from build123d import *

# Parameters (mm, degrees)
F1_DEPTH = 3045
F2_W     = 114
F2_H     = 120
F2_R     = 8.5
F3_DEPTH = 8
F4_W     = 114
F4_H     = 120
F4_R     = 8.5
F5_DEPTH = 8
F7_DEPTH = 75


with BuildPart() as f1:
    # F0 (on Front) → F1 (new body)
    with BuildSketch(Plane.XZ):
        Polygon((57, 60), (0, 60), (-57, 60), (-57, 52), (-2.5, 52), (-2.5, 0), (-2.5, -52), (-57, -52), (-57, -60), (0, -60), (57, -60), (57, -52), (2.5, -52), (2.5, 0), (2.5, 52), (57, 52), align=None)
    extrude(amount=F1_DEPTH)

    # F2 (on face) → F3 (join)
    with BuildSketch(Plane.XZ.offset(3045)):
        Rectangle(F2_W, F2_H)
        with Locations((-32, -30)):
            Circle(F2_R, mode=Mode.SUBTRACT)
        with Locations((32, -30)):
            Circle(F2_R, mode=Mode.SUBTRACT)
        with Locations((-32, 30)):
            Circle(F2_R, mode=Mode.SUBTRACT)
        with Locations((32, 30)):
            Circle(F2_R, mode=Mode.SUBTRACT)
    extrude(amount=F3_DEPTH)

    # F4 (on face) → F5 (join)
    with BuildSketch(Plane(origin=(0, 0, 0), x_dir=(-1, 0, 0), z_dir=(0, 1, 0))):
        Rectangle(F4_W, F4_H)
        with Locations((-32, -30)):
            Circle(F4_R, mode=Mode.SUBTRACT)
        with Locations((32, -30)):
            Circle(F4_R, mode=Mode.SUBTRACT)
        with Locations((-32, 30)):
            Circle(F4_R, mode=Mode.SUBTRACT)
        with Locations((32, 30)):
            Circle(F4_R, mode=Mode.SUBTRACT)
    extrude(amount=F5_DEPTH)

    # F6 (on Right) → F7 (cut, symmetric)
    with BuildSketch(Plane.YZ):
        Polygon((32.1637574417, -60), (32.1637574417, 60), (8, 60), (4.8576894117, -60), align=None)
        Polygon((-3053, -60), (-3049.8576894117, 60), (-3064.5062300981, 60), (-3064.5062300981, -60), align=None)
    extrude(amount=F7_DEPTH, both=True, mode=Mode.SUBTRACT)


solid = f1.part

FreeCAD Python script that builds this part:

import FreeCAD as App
import Part
import Sketcher
Q = App.Units.Quantity


def add_polygon(sketch, points):
    """Adds a closed chain of lines whose ends are joined by coincident constraints."""
    first, n = sketch.GeometryCount, len(points)
    for a, b in zip(points, points[1:] + points[:1]):
        sketch.addGeometry(Part.LineSegment(App.Vector(*a, 0), App.Vector(*b, 0)), False)
    for i in range(n):
        sketch.addConstraint(Sketcher.Constraint("Coincident", first + i, 2, first + (i + 1) % n, 1))

doc = App.newDocument("Part")
body = doc.addObject("PartDesign::Body", "Body")

# Sketch on XZ plane
sketch1 = doc.addObject("Sketcher::SketchObject", "Sketch")
body.addObject(sketch1)
sketch1.AttachmentSupport = (doc.XZ_Plane, [""])
sketch1.MapMode = "FlatFace"
add_polygon(sketch1, [(57, 60), (-57, 60), (-57, 52), (-2.5, 52), (-2.5, -52), (-57, -52), (-57, -60), (57, -60), (57, -52), (2.5, -52), (2.5, 52), (57, 52)])  # lines 0-11
sketch1.addConstraint(Sketcher.Constraint("Horizontal", 0))
sketch1.addConstraint(Sketcher.Constraint("Vertical", 1))
sketch1.addConstraint(Sketcher.Constraint("Horizontal", 2))
sketch1.addConstraint(Sketcher.Constraint("Vertical", 3))
sketch1.addConstraint(Sketcher.Constraint("Horizontal", 4))
sketch1.addConstraint(Sketcher.Constraint("Vertical", 5))
sketch1.addConstraint(Sketcher.Constraint("Horizontal", 6))
sketch1.addConstraint(Sketcher.Constraint("Vertical", 7))
sketch1.addConstraint(Sketcher.Constraint("Horizontal", 8))
sketch1.addConstraint(Sketcher.Constraint("Vertical", 9))
sketch1.addConstraint(Sketcher.Constraint("Horizontal", 10))
sketch1.addConstraint(Sketcher.Constraint("Vertical", 11))
sketch1.addConstraint(Sketcher.Constraint("Symmetric", 0, 2, 6, 2, -1, 1))
sketch1.addConstraint(Sketcher.Constraint("Symmetric", 2, 2, 8, 2, -1, 1))
sketch1.addConstraint(Sketcher.Constraint("Symmetric", 4, 2, 10, 2, -1, 1))
sketch1.addConstraint(Sketcher.Constraint("Symmetric", 4, 2, 7, 2, -2))
sketch1.addConstraint(Sketcher.Constraint("DistanceX", 0, 2, 0, 1, 114.0))
sketch1.addConstraint(Sketcher.Constraint("DistanceY", 1, 2, 1, 1, 8.0))
sketch1.addConstraint(Sketcher.Constraint("DistanceY", 3, 2, 3, 1, 104.0))
sketch1.addConstraint(Sketcher.Constraint("DistanceX", 2, 1, 2, 2, 54.5))
pad1 = doc.addObject("PartDesign::Pad", "Pad")
body.addObject(pad1)
pad1.Profile = sketch1
pad1.Length = 3045

# Sketch on XZ plane
sketch2 = doc.addObject("Sketcher::SketchObject", "Sketch001")
body.addObject(sketch2)
sketch2.AttachmentSupport = (doc.XZ_Plane, [""])
sketch2.MapMode = "FlatFace"
sketch2.AttachmentOffset = App.Placement(App.Vector(0, 0, 3045), App.Rotation())
add_polygon(sketch2, [(-57, 60), (-57, -60), (57, -60), (57, 60)])  # lines 0-3
sketch2.addGeometry(Part.Circle(App.Vector(-32, -30, 0), App.Vector(0, 0, 1), 8.5), False)  # 4
sketch2.addGeometry(Part.Circle(App.Vector(32, -30, 0), App.Vector(0, 0, 1), 8.5), False)  # 5
sketch2.addGeometry(Part.Circle(App.Vector(-32, 30, 0), App.Vector(0, 0, 1), 8.5), False)  # 6
sketch2.addGeometry(Part.Circle(App.Vector(32, 30, 0), App.Vector(0, 0, 1), 8.5), False)  # 7
sketch2.addConstraint(Sketcher.Constraint("Vertical", 0))
sketch2.addConstraint(Sketcher.Constraint("Horizontal", 1))
sketch2.addConstraint(Sketcher.Constraint("Vertical", 2))
sketch2.addConstraint(Sketcher.Constraint("Horizontal", 3))
sketch2.addConstraint(Sketcher.Constraint("Equal", 4, 5))
sketch2.addConstraint(Sketcher.Constraint("Equal", 5, 6))
sketch2.addConstraint(Sketcher.Constraint("Equal", 6, 7))
sketch2.addConstraint(Sketcher.Constraint("Symmetric", 5, 3, 6, 3, -1, 1))
sketch2.addConstraint(Sketcher.Constraint("Symmetric", 4, 3, 7, 3, -1, 1))
sketch2.addConstraint(Sketcher.Constraint("Symmetric", 0, 2, 2, 2, -1, 1))
sketch2.addConstraint(Sketcher.Constraint("Symmetric", 4, 3, 5, 3, -2))
sketch2.addConstraint(Sketcher.Constraint("Diameter", 4, 17.0))
sketch2.addConstraint(Sketcher.Constraint("DistanceX", 1, 1, 1, 2, 114.0))
sketch2.addConstraint(Sketcher.Constraint("DistanceY", 0, 2, 0, 1, 120.0))
sketch2.addConstraint(Sketcher.Constraint("DistanceX", 4, 3, -1, 1, 32.0))
sketch2.addConstraint(Sketcher.Constraint("DistanceY", 4, 3, -1, 1, 30.0))
pad2 = doc.addObject("PartDesign::Pad", "Pad001")
body.addObject(pad2)
pad2.Profile = sketch2
pad2.Length = 8

# Sketch on XZ plane
sketch3 = doc.addObject("Sketcher::SketchObject", "Sketch002")
body.addObject(sketch3)
sketch3.AttachmentSupport = (doc.XZ_Plane, [""])
sketch3.MapMode = "FlatFace"
add_polygon(sketch3, [(57, 60), (57, -60), (-57, -60), (-57, 60)])  # lines 0-3
sketch3.addGeometry(Part.Circle(App.Vector(32, -30, 0), App.Vector(0, 0, 1), 8.5), False)  # 4
sketch3.addGeometry(Part.Circle(App.Vector(-32, -30, 0), App.Vector(0, 0, 1), 8.5), False)  # 5
sketch3.addGeometry(Part.Circle(App.Vector(32, 30, 0), App.Vector(0, 0, 1), 8.5), False)  # 6
sketch3.addGeometry(Part.Circle(App.Vector(-32, 30, 0), App.Vector(0, 0, 1), 8.5), False)  # 7
sketch3.addConstraint(Sketcher.Constraint("Vertical", 0))
sketch3.addConstraint(Sketcher.Constraint("Horizontal", 1))
sketch3.addConstraint(Sketcher.Constraint("Vertical", 2))
sketch3.addConstraint(Sketcher.Constraint("Horizontal", 3))
sketch3.addConstraint(Sketcher.Constraint("Equal", 4, 5))
sketch3.addConstraint(Sketcher.Constraint("Equal", 5, 6))
sketch3.addConstraint(Sketcher.Constraint("Equal", 6, 7))
sketch3.addConstraint(Sketcher.Constraint("Symmetric", 5, 3, 6, 3, -1, 1))
sketch3.addConstraint(Sketcher.Constraint("Symmetric", 4, 3, 7, 3, -1, 1))
sketch3.addConstraint(Sketcher.Constraint("Symmetric", 0, 2, 2, 2, -1, 1))
sketch3.addConstraint(Sketcher.Constraint("Symmetric", 4, 3, 5, 3, -2))
sketch3.addConstraint(Sketcher.Constraint("Diameter", 4, 17.0))
sketch3.addConstraint(Sketcher.Constraint("DistanceX", 1, 2, 1, 1, 114.0))
sketch3.addConstraint(Sketcher.Constraint("DistanceY", 0, 2, 0, 1, 120.0))
sketch3.addConstraint(Sketcher.Constraint("DistanceX", -1, 1, 4, 3, 32.0))
sketch3.addConstraint(Sketcher.Constraint("DistanceY", 4, 3, -1, 1, 30.0))
pad3 = doc.addObject("PartDesign::Pad", "Pad002")
body.addObject(pad3)
pad3.Profile = sketch3
pad3.Length = 8
pad3.Reversed = True

# Sketch on YZ plane
sketch4 = doc.addObject("Sketcher::SketchObject", "Sketch003")
body.addObject(sketch4)
sketch4.AttachmentSupport = (doc.YZ_Plane, [""])
sketch4.MapMode = "FlatFace"
add_polygon(sketch4, [(32.163757, -60), (32.163757, 60), (8, 60), (4.857689, -60)])  # lines 0-3
add_polygon(sketch4, [(-3053, -60), (-3049.857689, 60), (-3064.50623, 60), (-3064.50623, -60)])  # lines 4-7
sketch4.addConstraint(Sketcher.Constraint("Vertical", 0))
sketch4.addConstraint(Sketcher.Constraint("Horizontal", 1))
sketch4.addConstraint(Sketcher.Constraint("Horizontal", 3))
sketch4.addConstraint(Sketcher.Constraint("Horizontal", 5))
sketch4.addConstraint(Sketcher.Constraint("Vertical", 6))
sketch4.addConstraint(Sketcher.Constraint("Horizontal", 7))
sketch4.addConstraint(Sketcher.Constraint("Parallel", 2, 4))
sketch4.addConstraint(Sketcher.Constraint("Horizontal", 1, 2, 4, 2))
sketch4.addConstraint(Sketcher.Constraint("Horizontal", 3, 2, 6, 2))
sketch4.addConstraint(Sketcher.Constraint("DistanceY", 0, 1, 0, 2, 120.0))
sketch4.addConstraint(Sketcher.Constraint("DistanceY", -1, 1, 0, 2, 60.0))
sketch4.addConstraint(Sketcher.Constraint("DistanceX", -1, 1, 1, 2, 8.0))
sketch4.addConstraint(Sketcher.Constraint("DistanceX", 7, 2, -1, 1, 3053.0))
sketch4.addConstraint(Sketcher.Constraint("Angle", 2, Q("-91.5 deg")))
sketch4.addConstraint(Sketcher.Constraint("DistanceX", 3, 1, 3, 2, 27.306068))
sketch4.addConstraint(Sketcher.Constraint("DistanceX", 5, 2, 5, 1, 14.648541))
pocket1 = doc.addObject("PartDesign::Pocket", "Pocket")
body.addObject(pocket1)
pocket1.Profile = sketch4
pocket1.Length = 150
pocket1.Midplane = True

doc.recompute()
